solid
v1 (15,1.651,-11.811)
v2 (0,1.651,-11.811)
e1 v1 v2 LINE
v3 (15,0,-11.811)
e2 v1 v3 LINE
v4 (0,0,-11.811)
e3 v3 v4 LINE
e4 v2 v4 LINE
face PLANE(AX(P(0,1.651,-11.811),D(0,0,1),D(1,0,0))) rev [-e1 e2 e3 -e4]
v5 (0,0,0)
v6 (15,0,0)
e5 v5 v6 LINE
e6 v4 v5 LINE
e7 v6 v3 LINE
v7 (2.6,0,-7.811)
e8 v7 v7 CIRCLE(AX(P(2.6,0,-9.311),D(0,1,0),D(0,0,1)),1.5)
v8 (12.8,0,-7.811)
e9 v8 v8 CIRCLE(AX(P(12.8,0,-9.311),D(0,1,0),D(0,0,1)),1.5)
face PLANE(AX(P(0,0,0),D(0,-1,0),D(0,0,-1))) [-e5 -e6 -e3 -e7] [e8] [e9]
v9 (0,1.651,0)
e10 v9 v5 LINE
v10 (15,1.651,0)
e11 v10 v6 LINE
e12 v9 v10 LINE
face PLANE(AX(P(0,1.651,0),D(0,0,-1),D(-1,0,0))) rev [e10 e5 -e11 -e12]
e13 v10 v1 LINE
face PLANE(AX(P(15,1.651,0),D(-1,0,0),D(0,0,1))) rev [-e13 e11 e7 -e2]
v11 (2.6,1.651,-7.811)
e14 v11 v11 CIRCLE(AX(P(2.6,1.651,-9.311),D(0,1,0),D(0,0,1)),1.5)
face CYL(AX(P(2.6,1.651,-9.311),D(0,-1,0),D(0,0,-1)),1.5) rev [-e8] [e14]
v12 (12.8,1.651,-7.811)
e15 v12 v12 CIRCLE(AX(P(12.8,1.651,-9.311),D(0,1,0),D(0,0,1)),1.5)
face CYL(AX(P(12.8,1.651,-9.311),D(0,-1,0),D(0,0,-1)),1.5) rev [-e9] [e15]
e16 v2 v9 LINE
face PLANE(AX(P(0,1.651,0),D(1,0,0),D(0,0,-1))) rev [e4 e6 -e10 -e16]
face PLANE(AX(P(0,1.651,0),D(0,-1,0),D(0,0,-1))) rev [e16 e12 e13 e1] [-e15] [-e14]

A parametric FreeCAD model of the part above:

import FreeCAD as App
import Part
import Sketcher
from FreeCAD import Vector

doc = App.newDocument("Part")
params = doc.addObject("Spreadsheet::Sheet", "Params")
for row, (alias, value) in enumerate([
    ("sketch1_diameter", "3 mm"),
    ("sketch1_width", "15 mm"),
    ("pad1_length", "1.651 mm"),
], start=1):
    params.set(f"A{row}", alias)
    params.set(f"B{row}", "=" + value)
    params.setAlias(f"B{row}", alias)

body = doc.addObject("PartDesign::Body", "Body")

# Sketch on XZ plane
sketch1 = body.newObject("Sketcher::SketchObject", "Sketch")
sketch1.AttachmentSupport = (doc.getObject("XZ_Plane"), [""])
sketch1.MapMode = "FlatFace"
sketch1.addGeometry([
    Part.LineSegment(Vector(0, -11.811, 0), Vector(0, 0, 0)),  # 0
    Part.LineSegment(Vector(0, 0, 0), Vector(15, 0, 0)),  # 1
    Part.LineSegment(Vector(15, 0, 0), Vector(15, -11.811, 0)),  # 2
    Part.LineSegment(Vector(15, -11.811, 0), Vector(0, -11.811, 0)),  # 3
    Part.Circle(Vector(2.6, -9.311, 0), Vector(0, 0, 1), 1.5),  # 4
    Part.Circle(Vector(12.8, -9.311, 0), Vector(0, 0, 1), 1.5),  # 5
], False)
sketch1.addConstraint([
    Sketcher.Constraint("Coincident", 0, 2, 1, 1),
    Sketcher.Constraint("Coincident", 1, 2, 2, 1),
    Sketcher.Constraint("Coincident", 2, 2, 3, 1),
    Sketcher.Constraint("Coincident", 3, 2, 0, 1),
    Sketcher.Constraint("Vertical", 0),
    Sketcher.Constraint("Horizontal", 1),
    Sketcher.Constraint("Vertical", 2),
    Sketcher.Constraint("Horizontal", 3),
    Sketcher.Constraint("Coincident", 0, 2, -1, 1),
    Sketcher.Constraint("Equal", 4, 5),
    Sketcher.Constraint("Horizontal", 4, 3, 5, 3),
    Sketcher.Constraint("Diameter", 4, 3.0),
    Sketcher.Constraint("DistanceX", 1, 1, 1, 2, 15.0),
    Sketcher.Constraint("DistanceX", -1, 1, 4, 3, 2.6),
    Sketcher.Constraint("DistanceX", -1, 1, 5, 3, 12.8),
    Sketcher.Constraint("DistanceY", 2, 2, 5, 3, 2.5),
    Sketcher.Constraint("DistanceY", 0, 1, 0, 2, 11.811),
])
sketch1.setExpression("Constraints[11]", "Params.sketch1_diameter")
sketch1.setExpression("Constraints[12]", "Params.sketch1_width")
pad1 = body.newObject("PartDesign::Pad", "Pad")
pad1.Profile = sketch1
pad1.setExpression("Length", "Params.pad1_length")
pad1.Reversed = True

doc.recompute()
